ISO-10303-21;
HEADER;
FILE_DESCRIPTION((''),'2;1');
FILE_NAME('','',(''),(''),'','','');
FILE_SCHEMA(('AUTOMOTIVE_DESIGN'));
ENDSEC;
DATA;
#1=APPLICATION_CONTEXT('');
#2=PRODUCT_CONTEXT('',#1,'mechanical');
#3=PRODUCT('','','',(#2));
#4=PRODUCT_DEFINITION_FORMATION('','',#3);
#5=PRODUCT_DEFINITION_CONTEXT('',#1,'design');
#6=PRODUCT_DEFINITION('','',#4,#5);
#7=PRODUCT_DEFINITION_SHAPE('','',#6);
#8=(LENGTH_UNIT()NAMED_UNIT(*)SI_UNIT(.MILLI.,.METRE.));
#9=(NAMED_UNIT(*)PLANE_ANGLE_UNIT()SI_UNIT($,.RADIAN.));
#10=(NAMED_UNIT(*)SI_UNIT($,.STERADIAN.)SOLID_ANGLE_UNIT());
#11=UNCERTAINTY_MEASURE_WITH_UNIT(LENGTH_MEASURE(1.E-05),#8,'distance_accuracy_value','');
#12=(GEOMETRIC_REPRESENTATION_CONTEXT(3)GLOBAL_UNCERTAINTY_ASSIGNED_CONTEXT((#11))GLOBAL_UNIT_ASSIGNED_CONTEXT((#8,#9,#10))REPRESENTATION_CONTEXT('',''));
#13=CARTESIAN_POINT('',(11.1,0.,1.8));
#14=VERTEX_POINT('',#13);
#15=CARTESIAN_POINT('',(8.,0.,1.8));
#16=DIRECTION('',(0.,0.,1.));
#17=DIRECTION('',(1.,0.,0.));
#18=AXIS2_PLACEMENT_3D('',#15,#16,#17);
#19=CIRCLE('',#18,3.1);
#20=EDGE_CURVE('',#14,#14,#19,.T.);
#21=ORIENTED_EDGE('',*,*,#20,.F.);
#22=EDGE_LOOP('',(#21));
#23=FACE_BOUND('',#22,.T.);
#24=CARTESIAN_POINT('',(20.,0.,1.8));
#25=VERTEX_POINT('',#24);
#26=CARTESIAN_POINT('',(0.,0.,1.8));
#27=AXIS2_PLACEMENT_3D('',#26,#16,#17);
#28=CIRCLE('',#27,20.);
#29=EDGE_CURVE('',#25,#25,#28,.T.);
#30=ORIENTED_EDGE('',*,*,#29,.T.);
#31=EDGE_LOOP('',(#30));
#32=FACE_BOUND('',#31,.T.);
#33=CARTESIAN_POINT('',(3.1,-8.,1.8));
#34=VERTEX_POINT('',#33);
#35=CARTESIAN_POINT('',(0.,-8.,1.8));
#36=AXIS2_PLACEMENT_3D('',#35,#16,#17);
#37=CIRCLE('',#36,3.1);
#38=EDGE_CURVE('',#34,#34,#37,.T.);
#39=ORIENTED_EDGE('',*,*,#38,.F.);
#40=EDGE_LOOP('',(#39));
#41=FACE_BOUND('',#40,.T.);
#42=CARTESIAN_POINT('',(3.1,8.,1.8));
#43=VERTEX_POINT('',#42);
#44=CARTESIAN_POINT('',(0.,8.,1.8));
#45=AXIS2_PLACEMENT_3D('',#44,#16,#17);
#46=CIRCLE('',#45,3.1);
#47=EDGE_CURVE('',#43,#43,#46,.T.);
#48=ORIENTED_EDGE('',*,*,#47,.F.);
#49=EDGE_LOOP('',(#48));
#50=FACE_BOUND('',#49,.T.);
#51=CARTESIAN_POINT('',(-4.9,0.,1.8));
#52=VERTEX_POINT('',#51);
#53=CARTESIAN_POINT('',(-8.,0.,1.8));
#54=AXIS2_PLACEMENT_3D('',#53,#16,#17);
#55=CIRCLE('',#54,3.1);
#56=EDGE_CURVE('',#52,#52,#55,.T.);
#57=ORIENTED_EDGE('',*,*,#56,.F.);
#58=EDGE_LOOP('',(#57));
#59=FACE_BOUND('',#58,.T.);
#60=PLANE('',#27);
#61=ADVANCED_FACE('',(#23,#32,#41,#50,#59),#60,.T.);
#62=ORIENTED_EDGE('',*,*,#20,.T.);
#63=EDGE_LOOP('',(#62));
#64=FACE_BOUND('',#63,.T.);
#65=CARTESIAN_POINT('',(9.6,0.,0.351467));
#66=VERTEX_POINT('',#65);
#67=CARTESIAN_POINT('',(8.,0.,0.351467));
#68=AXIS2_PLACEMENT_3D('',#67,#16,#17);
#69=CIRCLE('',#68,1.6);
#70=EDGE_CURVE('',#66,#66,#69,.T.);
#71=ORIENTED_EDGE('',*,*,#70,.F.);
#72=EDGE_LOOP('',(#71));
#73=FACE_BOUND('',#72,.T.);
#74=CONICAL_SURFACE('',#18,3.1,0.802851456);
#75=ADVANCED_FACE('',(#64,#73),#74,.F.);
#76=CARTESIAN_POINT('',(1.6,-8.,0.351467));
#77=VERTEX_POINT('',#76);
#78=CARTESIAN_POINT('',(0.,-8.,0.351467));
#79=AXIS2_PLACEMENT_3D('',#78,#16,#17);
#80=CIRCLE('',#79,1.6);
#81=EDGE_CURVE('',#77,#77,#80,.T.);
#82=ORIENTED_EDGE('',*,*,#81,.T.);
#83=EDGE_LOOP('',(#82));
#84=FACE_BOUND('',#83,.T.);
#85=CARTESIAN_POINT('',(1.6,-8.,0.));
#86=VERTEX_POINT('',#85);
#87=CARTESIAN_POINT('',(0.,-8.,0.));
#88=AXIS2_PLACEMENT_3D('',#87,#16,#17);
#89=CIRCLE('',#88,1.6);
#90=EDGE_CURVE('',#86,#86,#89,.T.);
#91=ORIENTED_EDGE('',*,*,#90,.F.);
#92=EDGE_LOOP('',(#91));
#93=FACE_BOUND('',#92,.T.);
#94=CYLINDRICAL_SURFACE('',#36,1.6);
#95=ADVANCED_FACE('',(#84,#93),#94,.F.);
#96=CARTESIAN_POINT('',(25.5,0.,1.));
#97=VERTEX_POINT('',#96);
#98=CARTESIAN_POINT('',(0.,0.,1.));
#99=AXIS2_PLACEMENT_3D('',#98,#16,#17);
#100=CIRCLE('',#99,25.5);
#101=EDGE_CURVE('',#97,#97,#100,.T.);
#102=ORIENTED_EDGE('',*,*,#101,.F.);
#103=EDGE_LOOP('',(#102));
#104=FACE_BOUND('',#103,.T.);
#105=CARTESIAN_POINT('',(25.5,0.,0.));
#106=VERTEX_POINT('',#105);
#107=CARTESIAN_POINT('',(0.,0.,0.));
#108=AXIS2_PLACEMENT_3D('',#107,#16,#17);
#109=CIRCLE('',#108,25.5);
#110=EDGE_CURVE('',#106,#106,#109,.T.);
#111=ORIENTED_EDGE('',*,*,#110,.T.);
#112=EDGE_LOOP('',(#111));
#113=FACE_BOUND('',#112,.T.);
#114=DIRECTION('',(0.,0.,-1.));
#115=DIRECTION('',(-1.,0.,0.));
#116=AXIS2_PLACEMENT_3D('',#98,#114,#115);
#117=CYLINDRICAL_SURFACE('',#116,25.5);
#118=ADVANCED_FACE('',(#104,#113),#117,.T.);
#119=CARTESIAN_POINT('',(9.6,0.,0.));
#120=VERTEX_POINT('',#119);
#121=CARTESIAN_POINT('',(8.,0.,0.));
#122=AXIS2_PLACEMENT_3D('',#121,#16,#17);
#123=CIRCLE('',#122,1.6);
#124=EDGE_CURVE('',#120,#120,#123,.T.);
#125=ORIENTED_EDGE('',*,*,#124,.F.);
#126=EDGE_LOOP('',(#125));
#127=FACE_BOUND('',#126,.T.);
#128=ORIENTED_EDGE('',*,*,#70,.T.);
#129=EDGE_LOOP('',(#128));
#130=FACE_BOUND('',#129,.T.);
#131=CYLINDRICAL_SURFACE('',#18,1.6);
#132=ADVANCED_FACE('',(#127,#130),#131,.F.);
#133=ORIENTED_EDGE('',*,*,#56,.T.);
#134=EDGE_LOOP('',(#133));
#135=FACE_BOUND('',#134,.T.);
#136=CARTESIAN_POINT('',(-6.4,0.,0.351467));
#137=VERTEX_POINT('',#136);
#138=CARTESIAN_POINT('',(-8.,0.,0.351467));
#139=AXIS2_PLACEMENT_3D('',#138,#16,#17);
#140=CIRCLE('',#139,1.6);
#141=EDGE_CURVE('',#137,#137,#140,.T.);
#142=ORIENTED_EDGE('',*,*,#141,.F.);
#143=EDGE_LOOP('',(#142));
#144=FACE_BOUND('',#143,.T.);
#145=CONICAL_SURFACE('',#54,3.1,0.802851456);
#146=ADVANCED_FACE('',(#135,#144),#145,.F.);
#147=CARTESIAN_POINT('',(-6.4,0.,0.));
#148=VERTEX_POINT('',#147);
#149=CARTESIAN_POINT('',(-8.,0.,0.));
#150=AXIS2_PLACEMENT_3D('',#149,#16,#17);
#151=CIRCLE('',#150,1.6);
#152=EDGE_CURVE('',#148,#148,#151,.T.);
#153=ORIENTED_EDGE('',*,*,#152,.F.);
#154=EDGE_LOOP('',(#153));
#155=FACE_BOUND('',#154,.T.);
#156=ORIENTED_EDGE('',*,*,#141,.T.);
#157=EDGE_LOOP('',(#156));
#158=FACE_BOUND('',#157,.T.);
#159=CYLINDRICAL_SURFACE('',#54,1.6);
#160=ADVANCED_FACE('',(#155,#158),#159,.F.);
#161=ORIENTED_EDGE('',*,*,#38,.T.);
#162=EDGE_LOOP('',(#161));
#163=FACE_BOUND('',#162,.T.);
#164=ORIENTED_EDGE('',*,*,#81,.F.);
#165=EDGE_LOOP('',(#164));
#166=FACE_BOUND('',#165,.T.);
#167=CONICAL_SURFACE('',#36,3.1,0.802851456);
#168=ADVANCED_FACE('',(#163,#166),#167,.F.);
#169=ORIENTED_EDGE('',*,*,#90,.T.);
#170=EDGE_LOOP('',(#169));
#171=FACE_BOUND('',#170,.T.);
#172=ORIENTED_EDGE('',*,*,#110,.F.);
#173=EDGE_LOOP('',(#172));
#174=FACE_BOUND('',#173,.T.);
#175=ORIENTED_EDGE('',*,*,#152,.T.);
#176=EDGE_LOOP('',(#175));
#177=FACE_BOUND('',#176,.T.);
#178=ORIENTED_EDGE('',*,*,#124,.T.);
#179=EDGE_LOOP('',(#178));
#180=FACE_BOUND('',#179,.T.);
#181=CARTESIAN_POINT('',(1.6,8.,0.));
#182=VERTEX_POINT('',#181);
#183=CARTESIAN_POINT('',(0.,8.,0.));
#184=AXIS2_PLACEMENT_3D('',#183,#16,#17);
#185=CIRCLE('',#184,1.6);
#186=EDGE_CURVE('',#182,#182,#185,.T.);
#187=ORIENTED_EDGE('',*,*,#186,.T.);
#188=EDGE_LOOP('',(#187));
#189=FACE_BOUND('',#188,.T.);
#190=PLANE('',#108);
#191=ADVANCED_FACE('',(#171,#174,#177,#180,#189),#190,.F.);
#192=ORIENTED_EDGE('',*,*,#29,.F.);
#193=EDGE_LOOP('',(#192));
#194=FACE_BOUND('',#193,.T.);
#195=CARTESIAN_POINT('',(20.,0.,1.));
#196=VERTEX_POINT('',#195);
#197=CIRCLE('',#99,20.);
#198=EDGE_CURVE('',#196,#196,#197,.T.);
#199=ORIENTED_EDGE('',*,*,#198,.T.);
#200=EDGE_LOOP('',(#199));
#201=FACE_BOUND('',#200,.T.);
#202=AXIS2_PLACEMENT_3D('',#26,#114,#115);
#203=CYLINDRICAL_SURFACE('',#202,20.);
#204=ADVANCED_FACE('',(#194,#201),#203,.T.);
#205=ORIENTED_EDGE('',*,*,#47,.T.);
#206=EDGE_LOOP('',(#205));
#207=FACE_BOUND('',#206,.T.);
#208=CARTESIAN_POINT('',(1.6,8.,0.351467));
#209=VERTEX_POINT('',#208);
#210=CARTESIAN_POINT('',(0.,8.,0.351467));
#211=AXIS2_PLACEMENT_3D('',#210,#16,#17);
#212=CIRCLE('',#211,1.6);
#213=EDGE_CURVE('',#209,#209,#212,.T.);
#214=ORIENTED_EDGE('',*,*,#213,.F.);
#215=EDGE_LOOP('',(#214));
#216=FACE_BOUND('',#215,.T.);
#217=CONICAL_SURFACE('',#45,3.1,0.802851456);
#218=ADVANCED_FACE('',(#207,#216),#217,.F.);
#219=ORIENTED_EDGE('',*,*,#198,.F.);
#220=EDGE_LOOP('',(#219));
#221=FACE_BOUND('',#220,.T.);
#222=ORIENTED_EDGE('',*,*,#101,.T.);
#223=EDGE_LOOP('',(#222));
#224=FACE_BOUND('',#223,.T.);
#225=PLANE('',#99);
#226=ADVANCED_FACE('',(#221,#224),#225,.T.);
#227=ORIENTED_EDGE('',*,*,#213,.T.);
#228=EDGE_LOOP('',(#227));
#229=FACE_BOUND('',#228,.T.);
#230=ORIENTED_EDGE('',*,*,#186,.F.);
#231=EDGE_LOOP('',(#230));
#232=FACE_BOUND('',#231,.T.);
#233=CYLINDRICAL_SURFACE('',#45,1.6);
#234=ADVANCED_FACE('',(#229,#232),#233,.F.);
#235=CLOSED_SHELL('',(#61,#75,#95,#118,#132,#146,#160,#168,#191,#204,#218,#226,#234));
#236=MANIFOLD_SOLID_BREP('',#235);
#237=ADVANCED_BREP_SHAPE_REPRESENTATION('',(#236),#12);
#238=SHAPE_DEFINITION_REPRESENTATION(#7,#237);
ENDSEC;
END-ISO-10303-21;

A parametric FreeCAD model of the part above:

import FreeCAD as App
import Part
import Sketcher
from FreeCAD import Vector
Q = App.Units.Quantity

doc = App.newDocument("Part")
body = doc.addObject("PartDesign::Body", "Body")

sketch1 = body.newObject("Sketcher::SketchObject", "Sketch")
sketch1.AttachmentSupport = (doc.getObject("XY_Plane"), [""])
sketch1.MapMode = "FlatFace"
sketch1.addGeometry([
    Part.Circle(Vector(0, 0, 0), Vector(0, 0, 1), 26),
    Part.Circle(Vector(0, 0, 0), Vector(0, 0, 1), 20),
], False)
sketch1.addConstraint([
    Sketcher.Constraint("Coincident", 0, 3, -1, 1),
    Sketcher.Constraint("Coincident", 1, 3, -1, 1),
    Sketcher.Constraint("Diameter", 0, Q("51 mm")),
    Sketcher.Constraint("Diameter", 1, Q("40 mm")),
])
pad1 = body.newObject("PartDesign::Pad", "Pad")
pad1.Profile = sketch1
pad1.Length = 1

sketch2 = body.newObject("Sketcher::SketchObject", "Sketch001")
sketch2.AttachmentSupport = (doc.getObject("XY_Plane"), [""])
sketch2.MapMode = "FlatFace"
sketch2.addGeometry(Part.Circle(Vector(0, 0, 0), Vector(0, 0, 1), 20), False)
sketch2.addConstraint([
    Sketcher.Constraint("Coincident", 0, 3, -1, 1),
    Sketcher.Constraint("Diameter", 0, Q("40 mm")),
])
pad2 = body.newObject("PartDesign::Pad", "Pad001")
pad2.Profile = sketch2
pad2.Length = 1.8

sketch3 = body.newObject("Sketcher::SketchObject", "Sketch002")
sketch3.AttachmentSupport = (doc.getObject("YZ_Plane"), [""])
sketch3.MapMode = "FlatFace"
sketch3.AttachmentOffset = App.Placement(Vector(0, 0, -8), App.Rotation())
sketch3.addGeometry([
    Part.LineSegment(Vector(0, 0, 0), Vector(0, 1.8, 0)),
    Part.LineSegment(Vector(0, 1.8, 0), Vector(-3.1, 1.8, 0)),
    Part.LineSegment(Vector(-3.1, 1.8, 0), Vector(-1.6, 0.35, 0)),
    Part.LineSegment(Vector(-1.6, 0.35, 0), Vector(-1.6, 0, 0)),
    Part.LineSegment(Vector(-1.6, 0, 0), Vector(0, 0, 0)),
], False)
sketch3.addConstraint([
    Sketcher.Constraint("Coincident", 0, 2, 1, 1),
    Sketcher.Constraint("Coincident", 1, 2, 2, 1),
    Sketcher.Constraint("Coincident", 2, 2, 3, 1),
    Sketcher.Constraint("Coincident", 3, 2, 4, 1),
    Sketcher.Constraint("Coincident", 4, 2, 0, 1),
    Sketcher.Constraint("Vertical", 0),
    Sketcher.Constraint("Horizontal", 1),
    Sketcher.Constraint("Vertical", 3),
    Sketcher.Constraint("Horizontal", 4),
    Sketcher.Constraint("Coincident", 4, 2, -1, 1),
    Sketcher.Constraint("Angle", 2, Q("-44 deg")),
    Sketcher.Constraint("DistanceX", 1, 2, 1, 1, Q("3.1 mm")),
    Sketcher.Constraint("DistanceX", 4, 1, 4, 2, Q("1.6 mm")),
    Sketcher.Constraint("DistanceY", 0, 1, 0, 2, Q("1.8 mm")),
])
groove = body.newObject("PartDesign::Groove", "Groove")
groove.Profile = sketch3
groove.ReferenceAxis = (sketch3, ["V_Axis"])
groove.Angle = 360
doc.recompute()

datumline = body.newObject("PartDesign::Line", "DatumLine")
datumline.Placement = App.Placement(Vector(0, 0, 0), App.Rotation(Vector(0, 0, 1), Vector(0.707106781, 0.707106781, 0)))
linearpattern = body.newObject("PartDesign::LinearPattern", "LinearPattern")
linearpattern.Originals = [groove]
linearpattern.Direction = (datumline, [""])
linearpattern.Mode = "offset"
linearpattern.Offset = 11.313708
linearpattern.Occurrences = 2
body.Tip = linearpattern
doc.recompute()

linearpattern2 = body.newObject("PartDesign::LinearPattern", "LinearPattern001")
linearpattern2.Originals = [groove]
linearpattern2.Direction = (doc.getObject("X_Axis"), [""])
linearpattern2.Mode = "offset"
linearpattern2.Offset = 16
linearpattern2.Occurrences = 2
body.Tip = linearpattern2
doc.recompute()

datumline2 = body.newObject("PartDesign::Line", "DatumLine001")
datumline2.Placement = App.Placement(Vector(0, 0, 0), App.Rotation(Vector(0, 0, 1), Vector(0.707106781, -0.707106781, 0)))
linearpattern3 = body.newObject("PartDesign::LinearPattern", "LinearPattern002")
linearpattern3.Originals = [groove]
linearpattern3.Direction = (datumline2, [""])
linearpattern3.Mode = "offset"
linearpattern3.Offset = 11.313708
linearpattern3.Occurrences = 2
body.Tip = linearpattern3

doc.recompute()
